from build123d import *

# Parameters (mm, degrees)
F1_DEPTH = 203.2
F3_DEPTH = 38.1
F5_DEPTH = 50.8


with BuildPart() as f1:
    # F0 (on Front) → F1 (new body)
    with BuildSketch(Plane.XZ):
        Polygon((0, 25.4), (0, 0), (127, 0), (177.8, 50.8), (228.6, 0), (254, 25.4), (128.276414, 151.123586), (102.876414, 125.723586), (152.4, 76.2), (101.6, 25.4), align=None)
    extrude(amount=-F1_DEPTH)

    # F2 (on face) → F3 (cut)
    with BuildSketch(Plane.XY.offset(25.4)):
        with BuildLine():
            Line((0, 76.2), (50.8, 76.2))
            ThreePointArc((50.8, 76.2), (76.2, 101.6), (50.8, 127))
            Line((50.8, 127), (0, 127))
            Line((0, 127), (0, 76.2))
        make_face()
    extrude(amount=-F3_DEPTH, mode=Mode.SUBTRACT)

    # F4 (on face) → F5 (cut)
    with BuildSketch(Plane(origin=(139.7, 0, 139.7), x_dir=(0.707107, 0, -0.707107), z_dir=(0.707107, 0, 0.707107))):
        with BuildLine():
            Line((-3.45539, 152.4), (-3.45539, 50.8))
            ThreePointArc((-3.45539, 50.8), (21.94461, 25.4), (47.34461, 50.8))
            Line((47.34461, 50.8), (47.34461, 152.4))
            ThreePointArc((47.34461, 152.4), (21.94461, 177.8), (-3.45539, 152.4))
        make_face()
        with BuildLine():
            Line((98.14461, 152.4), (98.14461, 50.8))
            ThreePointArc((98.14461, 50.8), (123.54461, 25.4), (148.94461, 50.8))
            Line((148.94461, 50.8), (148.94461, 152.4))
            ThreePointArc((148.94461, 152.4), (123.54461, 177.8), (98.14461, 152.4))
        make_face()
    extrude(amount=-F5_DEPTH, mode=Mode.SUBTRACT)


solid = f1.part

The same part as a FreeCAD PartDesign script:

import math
import FreeCAD as App
import Part
import Sketcher

V = App.Vector
Q = App.Units.Quantity

doc = App.newDocument("Part")
body = doc.addObject("PartDesign::Body", "Body")

sketch1 = body.newObject("Sketcher::SketchObject", "Sketch")
sketch1.AttachmentSupport = (doc.getObject("XZ_Plane"), [""])
sketch1.MapMode = "FlatFace"
sketch1.addGeometry([
    Part.LineSegment(V(0, 25, 0), V(0, 0, 0)),
    Part.LineSegment(V(0, 0, 0), V(127, 0, 0)),
    Part.LineSegment(V(127, 0, 0), V(178, 51, 0)),
    Part.LineSegment(V(178, 51, 0), V(229, 0, 0)),
    Part.LineSegment(V(229, 0, 0), V(254, 25, 0)),
    Part.LineSegment(V(254, 25, 0), V(128, 151, 0)),
    Part.LineSegment(V(128, 151, 0), V(103, 126, 0)),
    Part.LineSegment(V(103, 126, 0), V(152, 76, 0)),
    Part.LineSegment(V(152, 76, 0), V(102, 25, 0)),
    Part.LineSegment(V(102, 25, 0), V(0, 25, 0)),
], False)
sketch1.addConstraint([
    Sketcher.Constraint("Coincident", 0, 2, 1, 1),
    Sketcher.Constraint("Coincident", 1, 2, 2, 1),
    Sketcher.Constraint("Coincident", 2, 2, 3, 1),
    Sketcher.Constraint("Coincident", 3, 2, 4, 1),
    Sketcher.Constraint("Coincident", 4, 2, 5, 1),
    Sketcher.Constraint("Coincident", 5, 2, 6, 1),
    Sketcher.Constraint("Coincident", 6, 2, 7, 1),
    Sketcher.Constraint("Coincident", 7, 2, 8, 1),
    Sketcher.Constraint("Coincident", 8, 2, 9, 1),
    Sketcher.Constraint("Coincident", 9, 2, 0, 1),
    Sketcher.Constraint("Vertical", 0),
    Sketcher.Constraint("Horizontal", 1),
    Sketcher.Constraint("Horizontal", 9),
    Sketcher.Constraint("Coincident", 0, 2, -1, 1),
    Sketcher.Constraint("PointOnObject", 3, 2, -1),
    Sketcher.Constraint("Perpendicular", 2, 3),
    Sketcher.Constraint("Perpendicular", 3, 4),
    Sketcher.Constraint("Perpendicular", 4, 5),
    Sketcher.Constraint("Perpendicular", 5, 6),
    Sketcher.Constraint("Perpendicular", 6, 7),
    Sketcher.Constraint("Perpendicular", 7, 8),
    Sketcher.Constraint("Horizontal", 4, 2, 8, 2),
    Sketcher.Constraint("Equal", 2, 3),
    Sketcher.Constraint("Equal", 4, 6),
    Sketcher.Constraint("Equal", 3, 8),
    Sketcher.Constraint("DistanceX", 1, 1, 1, 2, Q("5 in")),
    Sketcher.Constraint("DistanceX", 9, 2, 9, 1, Q("4 in")),
    Sketcher.Constraint("Distance", 5, Q("7 in")),
    Sketcher.Constraint("DistanceX", -1, 1, 2, 2, Q("7 in")),
])
pad1 = body.newObject("PartDesign::Pad", "Pad")
pad1.Profile = sketch1
pad1.Length = Q("8 in")
pad1.Reversed = True

sketch2 = body.newObject("Sketcher::SketchObject", "Sketch001")
sketch2.AttachmentSupport = (doc.getObject("XY_Plane"), [""])
sketch2.MapMode = "FlatFace"
sketch2.AttachmentOffset = App.Placement(V(0, 0, 1 * 25.4), App.Rotation())
sketch2.addGeometry([
    Part.LineSegment(V(0, 76, 0), V(51, 76, 0)),
    Part.ArcOfCircle(Part.Circle(V(51, 102, 0), V(0, 0, 1), 25), math.radians(-90), math.radians(90)),
    Part.LineSegment(V(51, 127, 0), V(0, 127, 0)),
    Part.LineSegment(V(0, 127, 0), V(0, 76, 0)),
], False)
sketch2.addConstraint([
    Sketcher.Constraint("Tangent", 0, 2, 1, 1),
    Sketcher.Constraint("Tangent", 1, 2, 2, 1),
    Sketcher.Constraint("Coincident", 2, 2, 3, 1),
    Sketcher.Constraint("Coincident", 3, 2, 0, 1),
    Sketcher.Constraint("Horizontal", 0),
    Sketcher.Constraint("Horizontal", 2),
    Sketcher.Constraint("Vertical", 3),
    Sketcher.Constraint("PointOnObject", 2, 2, -2),
    Sketcher.Constraint("Equal", 2, 3),
    Sketcher.Constraint("Radius", 1, Q("1 in")),
    Sketcher.Constraint("DistanceY", -1, 1, 1, 3, Q("4 in")),
])
pocket1 = body.newObject("PartDesign::Pocket", "Pocket")
pocket1.Profile = sketch2
pocket1.Length = Q("1.5 in")

sketch3 = body.newObject("Sketcher::SketchObject", "Sketch002")
sketch3.Placement = App.Placement(V(139.7, 0, 139.7), App.Rotation(V(0.707106781, 0, -0.707106781), V(0, 0.999999999, 0), V(0.707106781, 0, 0.707106781), "ZXY"))
sketch3.addGeometry([
    Part.LineSegment(V(-3, 152, 0), V(-3, 51, 0)),
    Part.ArcOfCircle(Part.Circle(V(22, 51, 0), V(0, 0, 1), 25), math.radians(180), math.radians(360)),
    Part.LineSegment(V(47, 51, 0), V(47, 152, 0)),
    Part.ArcOfCircle(Part.Circle(V(22, 152, 0), V(0, 0, 1), 25), math.radians(0), math.radians(180)),
    Part.LineSegment(V(98, 152, 0), V(98, 51, 0)),
    Part.ArcOfCircle(Part.Circle(V(124, 51, 0), V(0, 0, 1), 25), math.radians(180), math.radians(360)),
    Part.LineSegment(V(149, 51, 0), V(149, 152, 0)),
    Part.ArcOfCircle(Part.Circle(V(124, 152, 0), V(0, 0, 1), 25), math.radians(0), math.radians(180)),
], False)
sketch3.addConstraint([
    Sketcher.Constraint("Tangent", 0, 2, 1, 1),
    Sketcher.Constraint("Tangent", 1, 2, 2, 1),
    Sketcher.Constraint("Tangent", 2, 2, 3, 1),
    Sketcher.Constraint("Tangent", 3, 2, 0, 1),
    Sketcher.Constraint("Tangent", 4, 2, 5, 1),
    Sketcher.Constraint("Tangent", 5, 2, 6, 1),
    Sketcher.Constraint("Tangent", 6, 2, 7, 1),
    Sketcher.Constraint("Tangent", 7, 2, 4, 1),
    Sketcher.Constraint("Vertical", 0),
    Sketcher.Constraint("Vertical", 2),
    Sketcher.Constraint("Vertical", 4),
    Sketcher.Constraint("Vertical", 6),
    Sketcher.Constraint("Equal", 3, 5),
    Sketcher.Constraint("Horizontal", 1, 3, 5, 3),
    Sketcher.Constraint("Horizontal", 3, 3, 7, 3),
    Sketcher.Constraint("Radius", 1, Q("1 in")),
    Sketcher.Constraint("DistanceY", 0, 2, 0, 1, Q("4 in")),
    Sketcher.Constraint("DistanceY", -1, 1, 1, 3, Q("2 in")),
    Sketcher.Constraint("DistanceX", 1, 3, 5, 3, Q("4 in")),
    Sketcher.Constraint("DistanceX", -1, 1, 1, 3, Q("21.94461 mm")),
])
pocket2 = body.newObject("PartDesign::Pocket", "Pocket001")
pocket2.Profile = sketch3
pocket2.Length = Q("2 in")

doc.recompute()
